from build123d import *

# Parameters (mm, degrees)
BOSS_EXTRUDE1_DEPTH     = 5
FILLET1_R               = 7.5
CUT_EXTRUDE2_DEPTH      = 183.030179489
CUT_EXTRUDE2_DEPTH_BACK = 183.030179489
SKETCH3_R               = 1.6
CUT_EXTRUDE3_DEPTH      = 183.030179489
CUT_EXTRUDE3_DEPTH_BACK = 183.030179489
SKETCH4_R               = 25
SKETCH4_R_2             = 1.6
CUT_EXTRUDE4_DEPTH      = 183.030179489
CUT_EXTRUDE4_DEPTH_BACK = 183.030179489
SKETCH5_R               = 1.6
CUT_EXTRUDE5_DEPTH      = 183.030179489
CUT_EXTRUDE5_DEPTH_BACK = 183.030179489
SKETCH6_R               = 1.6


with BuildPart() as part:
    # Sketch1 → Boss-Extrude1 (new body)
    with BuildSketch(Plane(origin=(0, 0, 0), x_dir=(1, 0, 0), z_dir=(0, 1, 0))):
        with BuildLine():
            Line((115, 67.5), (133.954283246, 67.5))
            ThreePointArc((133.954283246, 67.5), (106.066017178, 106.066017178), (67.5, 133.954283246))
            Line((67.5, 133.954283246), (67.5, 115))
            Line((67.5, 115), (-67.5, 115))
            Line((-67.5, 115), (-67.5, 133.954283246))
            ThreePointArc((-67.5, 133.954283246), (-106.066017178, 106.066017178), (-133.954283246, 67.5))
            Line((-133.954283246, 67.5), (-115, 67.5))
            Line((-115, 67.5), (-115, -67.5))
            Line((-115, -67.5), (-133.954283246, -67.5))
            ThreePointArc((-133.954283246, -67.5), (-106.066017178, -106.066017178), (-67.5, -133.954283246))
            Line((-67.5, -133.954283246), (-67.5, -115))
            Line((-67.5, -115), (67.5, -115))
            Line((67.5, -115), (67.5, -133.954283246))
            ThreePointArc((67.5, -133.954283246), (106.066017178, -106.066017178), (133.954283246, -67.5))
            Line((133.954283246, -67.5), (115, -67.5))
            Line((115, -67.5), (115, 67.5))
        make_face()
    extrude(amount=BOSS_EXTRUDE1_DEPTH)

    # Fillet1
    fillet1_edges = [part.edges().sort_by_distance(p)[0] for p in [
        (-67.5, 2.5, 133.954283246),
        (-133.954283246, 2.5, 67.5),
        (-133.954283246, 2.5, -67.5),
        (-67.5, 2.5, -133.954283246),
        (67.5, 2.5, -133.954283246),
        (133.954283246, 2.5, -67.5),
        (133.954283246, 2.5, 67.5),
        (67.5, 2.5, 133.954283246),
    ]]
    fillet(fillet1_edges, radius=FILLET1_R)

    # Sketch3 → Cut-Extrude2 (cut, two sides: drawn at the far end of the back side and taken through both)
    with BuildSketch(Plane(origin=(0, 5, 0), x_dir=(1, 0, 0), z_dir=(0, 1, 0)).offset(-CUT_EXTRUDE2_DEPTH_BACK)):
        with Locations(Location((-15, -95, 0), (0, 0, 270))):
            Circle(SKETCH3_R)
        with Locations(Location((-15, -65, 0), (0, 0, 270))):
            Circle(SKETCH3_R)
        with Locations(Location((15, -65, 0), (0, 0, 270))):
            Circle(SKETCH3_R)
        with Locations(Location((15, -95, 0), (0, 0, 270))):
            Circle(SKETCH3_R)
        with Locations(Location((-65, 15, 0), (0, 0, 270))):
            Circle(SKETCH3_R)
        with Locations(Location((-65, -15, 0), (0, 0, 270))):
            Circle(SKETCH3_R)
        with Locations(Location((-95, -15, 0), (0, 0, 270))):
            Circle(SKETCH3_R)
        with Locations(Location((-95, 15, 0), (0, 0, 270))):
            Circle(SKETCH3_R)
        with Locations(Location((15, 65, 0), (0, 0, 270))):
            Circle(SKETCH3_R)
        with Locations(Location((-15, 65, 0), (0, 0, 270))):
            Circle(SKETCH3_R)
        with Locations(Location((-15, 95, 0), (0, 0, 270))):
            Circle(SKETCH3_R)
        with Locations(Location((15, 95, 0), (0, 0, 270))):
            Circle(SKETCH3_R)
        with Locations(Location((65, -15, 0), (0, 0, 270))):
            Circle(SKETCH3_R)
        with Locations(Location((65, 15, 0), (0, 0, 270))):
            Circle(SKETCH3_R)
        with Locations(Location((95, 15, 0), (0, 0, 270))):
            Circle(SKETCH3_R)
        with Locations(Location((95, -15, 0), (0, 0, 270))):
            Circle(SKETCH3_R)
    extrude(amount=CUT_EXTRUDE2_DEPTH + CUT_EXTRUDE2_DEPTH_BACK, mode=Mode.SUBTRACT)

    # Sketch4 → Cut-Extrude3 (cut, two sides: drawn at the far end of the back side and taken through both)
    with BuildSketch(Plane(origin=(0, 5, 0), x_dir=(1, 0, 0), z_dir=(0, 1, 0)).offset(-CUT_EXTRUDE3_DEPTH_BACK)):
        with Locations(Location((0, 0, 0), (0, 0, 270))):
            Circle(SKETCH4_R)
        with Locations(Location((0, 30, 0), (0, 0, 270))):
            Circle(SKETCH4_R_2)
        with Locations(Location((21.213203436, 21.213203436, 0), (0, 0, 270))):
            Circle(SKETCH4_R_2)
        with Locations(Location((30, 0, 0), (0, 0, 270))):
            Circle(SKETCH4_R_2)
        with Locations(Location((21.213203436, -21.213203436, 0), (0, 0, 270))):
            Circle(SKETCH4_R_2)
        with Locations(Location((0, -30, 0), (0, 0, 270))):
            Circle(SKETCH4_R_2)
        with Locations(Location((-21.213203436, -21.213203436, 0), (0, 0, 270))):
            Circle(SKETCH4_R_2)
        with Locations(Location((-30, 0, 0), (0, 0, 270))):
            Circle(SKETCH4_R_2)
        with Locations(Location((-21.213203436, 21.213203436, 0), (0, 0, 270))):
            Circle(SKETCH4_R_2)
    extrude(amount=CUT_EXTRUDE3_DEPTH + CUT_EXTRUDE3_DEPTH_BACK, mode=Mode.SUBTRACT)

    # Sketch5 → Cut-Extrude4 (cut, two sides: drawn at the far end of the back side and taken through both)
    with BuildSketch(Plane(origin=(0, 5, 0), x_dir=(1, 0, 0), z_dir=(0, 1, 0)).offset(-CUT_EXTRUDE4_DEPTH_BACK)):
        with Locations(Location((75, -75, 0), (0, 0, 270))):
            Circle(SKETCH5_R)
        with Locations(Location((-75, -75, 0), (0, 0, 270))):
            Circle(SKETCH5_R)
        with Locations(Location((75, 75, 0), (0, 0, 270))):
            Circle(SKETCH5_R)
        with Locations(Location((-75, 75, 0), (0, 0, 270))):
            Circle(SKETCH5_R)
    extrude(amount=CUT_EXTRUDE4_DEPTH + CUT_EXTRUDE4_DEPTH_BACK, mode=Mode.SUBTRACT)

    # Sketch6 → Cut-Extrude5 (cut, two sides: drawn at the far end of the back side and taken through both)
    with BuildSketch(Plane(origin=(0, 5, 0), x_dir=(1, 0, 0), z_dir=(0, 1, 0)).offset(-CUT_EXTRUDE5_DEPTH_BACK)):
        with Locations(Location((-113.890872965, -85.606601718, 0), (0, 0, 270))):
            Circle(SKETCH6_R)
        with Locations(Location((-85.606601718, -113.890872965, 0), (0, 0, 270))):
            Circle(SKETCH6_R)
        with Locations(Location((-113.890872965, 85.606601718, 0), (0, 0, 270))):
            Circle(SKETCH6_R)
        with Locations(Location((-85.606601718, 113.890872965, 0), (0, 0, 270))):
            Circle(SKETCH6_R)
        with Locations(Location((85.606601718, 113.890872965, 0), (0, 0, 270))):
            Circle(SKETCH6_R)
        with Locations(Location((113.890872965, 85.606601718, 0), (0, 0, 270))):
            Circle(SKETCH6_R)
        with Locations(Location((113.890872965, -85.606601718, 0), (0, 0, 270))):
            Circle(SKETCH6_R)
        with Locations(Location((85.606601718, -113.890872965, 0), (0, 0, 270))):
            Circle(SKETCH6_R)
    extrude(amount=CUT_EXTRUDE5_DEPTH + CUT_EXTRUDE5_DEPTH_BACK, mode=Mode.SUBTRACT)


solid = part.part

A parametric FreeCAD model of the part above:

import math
import FreeCAD as App
import Part
import Sketcher
from FreeCAD import Vector
Q = App.Units.Quantity


def edges_at(feature, points):
    """Names of the edges that pass closest to the given points."""
    edges = feature.Shape.Edges
    near = lambda p: min(range(len(edges)), key=lambda i: edges[i].distToShape(Part.Vertex(*p))[0])
    return sorted({f"Edge{near(p) + 1}" for p in points})

doc = App.newDocument("Part")
body = doc.addObject("PartDesign::Body", "Body")

sketch1 = body.newObject("Sketcher::SketchObject", "Sketch")
sketch1.AttachmentSupport = (doc.getObject("XZ_Plane"), [""])
sketch1.MapMode = "FlatFace"
sketch1.addGeometry([
    Part.LineSegment(Vector(115, -68, 0), Vector(134, -68, 0)),
    Part.ArcOfCircle(Part.Circle(Vector(0, 0, 0), Vector(0, 0, 1), 150), math.radians(-63), math.radians(-27)),
    Part.LineSegment(Vector(68, -134, 0), Vector(68, -115, 0)),
    Part.LineSegment(Vector(68, -115, 0), Vector(-68, -115, 0)),
    Part.LineSegment(Vector(-68, -115, 0), Vector(-68, -134, 0)),
    Part.ArcOfCircle(Part.Circle(Vector(0, 0, 0), Vector(0, 0, 1), 150), math.radians(-153), math.radians(-117)),
    Part.LineSegment(Vector(-134, -68, 0), Vector(-115, -68, 0)),
    Part.LineSegment(Vector(-115, -68, 0), Vector(-115, 68, 0)),
    Part.LineSegment(Vector(-115, 68, 0), Vector(-134, 68, 0)),
    Part.ArcOfCircle(Part.Circle(Vector(0, 0, 0), Vector(0, 0, 1), 150), math.radians(117), math.radians(153)),
    Part.LineSegment(Vector(-68, 134, 0), Vector(-68, 115, 0)),
    Part.LineSegment(Vector(-68, 115, 0), Vector(68, 115, 0)),
    Part.LineSegment(Vector(68, 115, 0), Vector(68, 134, 0)),
    Part.ArcOfCircle(Part.Circle(Vector(0, 0, 0), Vector(0, 0, 1), 150), math.radians(27), math.radians(63)),
    Part.LineSegment(Vector(134, 68, 0), Vector(115, 68, 0)),
    Part.LineSegment(Vector(115, 68, 0), Vector(115, -68, 0)),
], False)
sketch1.addConstraint([
    Sketcher.Constraint("Coincident", 0, 2, 1, 2),
    Sketcher.Constraint("Coincident", 1, 1, 2, 1),
    Sketcher.Constraint("Coincident", 2, 2, 3, 1),
    Sketcher.Constraint("Coincident", 3, 2, 4, 1),
    Sketcher.Constraint("Coincident", 4, 2, 5, 2),
    Sketcher.Constraint("Coincident", 5, 1, 6, 1),
    Sketcher.Constraint("Coincident", 6, 2, 7, 1),
    Sketcher.Constraint("Coincident", 7, 2, 8, 1),
    Sketcher.Constraint("Coincident", 8, 2, 9, 2),
    Sketcher.Constraint("Coincident", 9, 1, 10, 1),
    Sketcher.Constraint("Coincident", 10, 2, 11, 1),
    Sketcher.Constraint("Coincident", 11, 2, 12, 1),
    Sketcher.Constraint("Coincident", 12, 2, 13, 2),
    Sketcher.Constraint("Coincident", 13, 1, 14, 1),
    Sketcher.Constraint("Coincident", 14, 2, 15, 1),
    Sketcher.Constraint("Coincident", 15, 2, 0, 1),
    Sketcher.Constraint("Horizontal", 0),
    Sketcher.Constraint("Vertical", 2),
    Sketcher.Constraint("Horizontal", 3),
    Sketcher.Constraint("Vertical", 4),
    Sketcher.Constraint("Horizontal", 6),
    Sketcher.Constraint("Vertical", 7),
    Sketcher.Constraint("Horizontal", 8),
    Sketcher.Constraint("Vertical", 10),
    Sketcher.Constraint("Horizontal", 11),
    Sketcher.Constraint("Vertical", 12),
    Sketcher.Constraint("Horizontal", 14),
    Sketcher.Constraint("Vertical", 15),
    Sketcher.Constraint("Coincident", 1, 3, -1, 1),
    Sketcher.Constraint("Coincident", 5, 3, -1, 1),
    Sketcher.Constraint("Coincident", 9, 3, -1, 1),
    Sketcher.Constraint("Coincident", 13, 3, -1, 1),
    Sketcher.Constraint("Equal", 1, 5),
    Sketcher.Constraint("Equal", 5, 9),
    Sketcher.Constraint("Equal", 9, 13),
    Sketcher.Constraint("Symmetric", 2, 2, 10, 2, -1, 1),
    Sketcher.Constraint("Symmetric", 6, 2, 14, 2, -1, 1),
    Sketcher.Constraint("Horizontal", 1, 1, 4, 2),
    Sketcher.Constraint("Horizontal", 0, 2, 5, 1),
    Sketcher.Constraint("Horizontal", 9, 1, 12, 2),
    Sketcher.Constraint("Horizontal", 8, 2, 13, 1),
    Sketcher.Constraint("Equal", 14, 2),
    Sketcher.Constraint("Equal", 11, 7),
    Sketcher.Constraint("Radius", 1, Q("150 mm")),
    Sketcher.Constraint("DistanceX", 3, 2, 3, 1, Q("135 mm")),
    Sketcher.Constraint("DistanceY", 2, 2, -1, 1, Q("115 mm")),
])
pad1 = body.newObject("PartDesign::Pad", "Pad")
pad1.Profile = sketch1
pad1.Length = 5
pad1.Reversed = True
doc.recompute()

fillet = body.newObject("PartDesign::Fillet", "Fillet")
fillet.Base = (pad1, edges_at(pad1, [
    (-67.5, 2.5, 133.954),
    (-133.954, 2.5, 67.5),
    (-133.954, 2.5, -67.5),
    (-67.5, 2.5, -133.954),
    (67.5, 2.5, -133.954),
    (133.954, 2.5, -67.5),
    (133.954, 2.5, 67.5),
    (67.5, 2.5, 133.954),
]))
fillet.Radius = 7.5

sketch2 = body.newObject("Sketcher::SketchObject", "Sketch001")
sketch2.AttachmentSupport = (doc.getObject("XZ_Plane"), [""])
sketch2.MapMode = "FlatFace"
sketch2.AttachmentOffset = App.Placement(Vector(0, 0, -5), App.Rotation())
sketch2.addGeometry([
    Part.Circle(Vector(-15, 95, 0), Vector(0, 0, 1), 1.6),
    Part.Circle(Vector(-15, 65, 0), Vector(0, 0, 1), 1.6),
    Part.Circle(Vector(15, 65, 0), Vector(0, 0, 1), 1.6),
    Part.Circle(Vector(15, 95, 0), Vector(0, 0, 1), 1.6),
    Part.Circle(Vector(-65, -15, 0), Vector(0, 0, 1), 1.6),
    Part.Circle(Vector(-65, 15, 0), Vector(0, 0, 1), 1.6),
    Part.Circle(Vector(-95, 15, 0), Vector(0, 0, 1), 1.6),
    Part.Circle(Vector(-95, -15, 0), Vector(0, 0, 1), 1.6),
    Part.Circle(Vector(15, -65, 0), Vector(0, 0, 1), 1.6),
    Part.Circle(Vector(-15, -65, 0), Vector(0, 0, 1), 1.6),
    Part.Circle(Vector(-15, -95, 0), Vector(0, 0, 1), 1.6),
    Part.Circle(Vector(15, -95, 0), Vector(0, 0, 1), 1.6),
    Part.Circle(Vector(65, 15, 0), Vector(0, 0, 1), 1.6),
    Part.Circle(Vector(65, -15, 0), Vector(0, 0, 1), 1.6),
    Part.Circle(Vector(95, -15, 0), Vector(0, 0, 1), 1.6),
    Part.Circle(Vector(95, 15, 0), Vector(0, 0, 1), 1.6),
], False)
sketch2.addConstraint([
    Sketcher.Constraint("Equal", 0, 1),
    Sketcher.Constraint("Equal", 1, 2),
    Sketcher.Constraint("Equal", 2, 3),
    Sketcher.Constraint("Equal", 3, 4),
    Sketcher.Constraint("Equal", 4, 5),
    Sketcher.Constraint("Equal", 5, 6),
    Sketcher.Constraint("Equal", 6, 7),
    Sketcher.Constraint("Equal", 7, 8),
    Sketcher.Constraint("Equal", 8, 9),
    Sketcher.Constraint("Equal", 9, 10),
    Sketcher.Constraint("Equal", 10, 11),
    Sketcher.Constraint("Equal", 11, 12),
    Sketcher.Constraint("Equal", 12, 13),
    Sketcher.Constraint("Equal", 13, 14),
    Sketcher.Constraint("Equal", 14, 15),
    Sketcher.Constraint("Symmetric", 1, 3, 8, 3, -1, 1),
    Sketcher.Constraint("Symmetric", 2, 3, 9, 3, -1, 1),
    Sketcher.Constraint("Symmetric", 3, 3, 10, 3, -1, 1),
    Sketcher.Constraint("Symmetric", 0, 3, 11, 3, -1, 1),
    Sketcher.Constraint("Symmetric", 4, 3, 12, 3, -1, 1),
    Sketcher.Constraint("Symmetric", 5, 3, 13, 3, -1, 1),
    Sketcher.Constraint("Symmetric", 6, 3, 14, 3, -1, 1),
    Sketcher.Constraint("Symmetric", 7, 3, 15, 3, -1, 1),
    Sketcher.Constraint("Symmetric", 1, 3, 2, 3, -2),
    Sketcher.Constraint("Symmetric", 0, 3, 3, 3, -2),
    Sketcher.Constraint("Symmetric", 5, 3, 12, 3, -2),
    Sketcher.Constraint("Symmetric", 7, 3, 14, 3, -2),
    Sketcher.Constraint("Horizontal", 5, 3, 6, 3),
    Sketcher.Constraint("Vertical", 0, 3, 1, 3),
    Sketcher.Constraint("Diameter", 0, Q("3.2 mm")),
    Sketcher.Constraint("DistanceX", 0, 3, -1, 1, Q("15 mm")),
    Sketcher.Constraint("DistanceY", -1, 1, 0, 3, Q("95 mm")),
    Sketcher.Constraint("DistanceY", -1, 1, 1, 3, Q("65 mm")),
    Sketcher.Constraint("DistanceX", 4, 3, -1, 1, Q("65 mm")),
    Sketcher.Constraint("DistanceY", 4, 3, -1, 1, Q("15 mm")),
    Sketcher.Constraint("DistanceX", 6, 3, -1, 1, Q("95 mm")),
])
pocket1 = body.newObject("PartDesign::Pocket", "Pocket")
pocket1.Profile = sketch2
pocket1.Type = "ThroughAll"
pocket1.Midplane = True

sketch3 = body.newObject("Sketcher::SketchObject", "Sketch002")
sketch3.AttachmentSupport = (doc.getObject("XZ_Plane"), [""])
sketch3.MapMode = "FlatFace"
sketch3.AttachmentOffset = App.Placement(Vector(0, 0, -5), App.Rotation())
sketch3.addGeometry([
    Part.Circle(Vector(0, 0, 0), Vector(0, 0, 1), 25),
    Part.Circle(Vector(0, -30, 0), Vector(0, 0, 1), 1.6),
    Part.Circle(Vector(21.2, -21.2, 0), Vector(0, 0, 1), 1.6),
    Part.Circle(Vector(30, 0, 0), Vector(0, 0, 1), 1.6),
    Part.Circle(Vector(21.2, 21.2, 0), Vector(0, 0, 1), 1.6),
    Part.Circle(Vector(0, 30, 0), Vector(0, 0, 1), 1.6),
    Part.Circle(Vector(-21.2, 21.2, 0), Vector(0, 0, 1), 1.6),
    Part.Circle(Vector(-30, 0, 0), Vector(0, 0, 1), 1.6),
    Part.Circle(Vector(-21.2, -21.2, 0), Vector(0, 0, 1), 1.6),
], False)
sketch3.addConstraint([
    Sketcher.Constraint("Coincident", 0, 3, -1, 1),
    Sketcher.Constraint("Equal", 1, 2),
    Sketcher.Constraint("Equal", 2, 3),
    Sketcher.Constraint("Equal", 3, 4),
    Sketcher.Constraint("Equal", 4, 5),
    Sketcher.Constraint("Equal", 5, 6),
    Sketcher.Constraint("Equal", 6, 7),
    Sketcher.Constraint("Equal", 7, 8),
    Sketcher.Constraint("Symmetric", 1, 3, 5, 3, -1, 1),
    Sketcher.Constraint("Symmetric", 2, 3, 6, 3, -1, 1),
    Sketcher.Constraint("Symmetric", 3, 3, 7, 3, -1, 1),
    Sketcher.Constraint("Symmetric", 4, 3, 8, 3, -1, 1),
    Sketcher.Constraint("Symmetric", 4, 3, 6, 3, -2),
    Sketcher.Constraint("PointOnObject", 1, 3, -2),
    Sketcher.Constraint("PointOnObject", 3, 3, -1),
    Sketcher.Constraint("Diameter", 0, Q("50 mm")),
    Sketcher.Constraint("Diameter", 1, Q("3.2 mm")),
    Sketcher.Constraint("DistanceY", 1, 3, -1, 1, Q("30 mm")),
    Sketcher.Constraint("DistanceX", -1, 1, 3, 3, Q("30 mm")),
    Sketcher.Constraint("DistanceX", -1, 1, 2, 3, Q("21.213203 mm")),
    Sketcher.Constraint("DistanceY", 2, 3, -1, 1, Q("21.213203 mm")),
])
pocket2 = body.newObject("PartDesign::Pocket", "Pocket001")
pocket2.Profile = sketch3
pocket2.Type = "ThroughAll"
pocket2.Midplane = True

sketch4 = body.newObject("Sketcher::SketchObject", "Sketch003")
sketch4.AttachmentSupport = (doc.getObject("XZ_Plane"), [""])
sketch4.MapMode = "FlatFace"
sketch4.AttachmentOffset = App.Placement(Vector(0, 0, -5), App.Rotation())
sketch4.addGeometry([
    Part.Circle(Vector(75, 75, 0), Vector(0, 0, 1), 1.6),
    Part.Circle(Vector(-75, 75, 0), Vector(0, 0, 1), 1.6),
    Part.Circle(Vector(75, -75, 0), Vector(0, 0, 1), 1.6),
    Part.Circle(Vector(-75, -75, 0), Vector(0, 0, 1), 1.6),
], False)
sketch4.addConstraint([
    Sketcher.Constraint("Equal", 0, 1),
    Sketcher.Constraint("Equal", 1, 2),
    Sketcher.Constraint("Equal", 2, 3),
    Sketcher.Constraint("Symmetric", 1, 3, 2, 3, -1, 1),
    Sketcher.Constraint("Symmetric", 0, 3, 3, 3, -1, 1),
    Sketcher.Constraint("Symmetric", 0, 3, 1, 3, -2),
    Sketcher.Constraint("Diameter", 0, Q("3.2 mm")),
    Sketcher.Constraint("DistanceX", -1, 1, 0, 3, Q("75 mm")),
    Sketcher.Constraint("DistanceY", -1, 1, 0, 3, Q("75 mm")),
])
pocket3 = body.newObject("PartDesign::Pocket", "Pocket002")
pocket3.Profile = sketch4
pocket3.Type = "ThroughAll"
pocket3.Midplane = True

sketch5 = body.newObject("Sketcher::SketchObject", "Sketch004")
sketch5.AttachmentSupport = (doc.getObject("XZ_Plane"), [""])
sketch5.MapMode = "FlatFace"
sketch5.AttachmentOffset = App.Placement(Vector(0, 0, -5), App.Rotation())
sketch5.addGeometry([
    Part.Circle(Vector(-113.9, 85.6, 0), Vector(0, 0, 1), 1.6),
    Part.Circle(Vector(-85.6, 113.9, 0), Vector(0, 0, 1), 1.6),
    Part.Circle(Vector(-113.9, -85.6, 0), Vector(0, 0, 1), 1.6),
    Part.Circle(Vector(-85.6, -113.9, 0), Vector(0, 0, 1), 1.6),
    Part.Circle(Vector(85.6, -113.9, 0), Vector(0, 0, 1), 1.6),
    Part.Circle(Vector(113.9, -85.6, 0), Vector(0, 0, 1), 1.6),
    Part.Circle(Vector(113.9, 85.6, 0), Vector(0, 0, 1), 1.6),
    Part.Circle(Vector(85.6, 113.9, 0), Vector(0, 0, 1), 1.6),
], False)
sketch5.addConstraint([
    Sketcher.Constraint("Equal", 0, 1),
    Sketcher.Constraint("Equal", 1, 2),
    Sketcher.Constraint("Equal", 2, 3),
    Sketcher.Constraint("Equal", 3, 4),
    Sketcher.Constraint("Equal", 4, 5),
    Sketcher.Constraint("Equal", 5, 6),
    Sketcher.Constraint("Equal", 6, 7),
    Sketcher.Constraint("Symmetric", 1, 3, 4, 3, -1, 1),
    Sketcher.Constraint("Symmetric", 0, 3, 5, 3, -1, 1),
    Sketcher.Constraint("Symmetric", 2, 3, 6, 3, -1, 1),
    Sketcher.Constraint("Symmetric", 3, 3, 7, 3, -1, 1),
    Sketcher.Constraint("Symmetric", 3, 3, 4, 3, -2),
    Sketcher.Constraint("Symmetric", 2, 3, 5, 3, -2),
    Sketcher.Constraint("Diameter", 0, Q("3.2 mm")),
    Sketcher.Constraint("DistanceY", -1, 1, 0, 3, Q("85.606602 mm")),
    Sketcher.Constraint("DistanceX", 1, 3, -1, 1, Q("85.606602 mm")),
    Sketcher.Constraint("DistanceX", 0, 3, 1, 3, Q("28.284271 mm")),
    Sketcher.Constraint("DistanceY", 0, 3, 1, 3, Q("28.284271 mm")),
])
pocket4 = body.newObject("PartDesign::Pocket", "Pocket003")
pocket4.Profile = sketch5
pocket4.Type = "ThroughAll"
pocket4.Midplane = True

doc.recompute()
